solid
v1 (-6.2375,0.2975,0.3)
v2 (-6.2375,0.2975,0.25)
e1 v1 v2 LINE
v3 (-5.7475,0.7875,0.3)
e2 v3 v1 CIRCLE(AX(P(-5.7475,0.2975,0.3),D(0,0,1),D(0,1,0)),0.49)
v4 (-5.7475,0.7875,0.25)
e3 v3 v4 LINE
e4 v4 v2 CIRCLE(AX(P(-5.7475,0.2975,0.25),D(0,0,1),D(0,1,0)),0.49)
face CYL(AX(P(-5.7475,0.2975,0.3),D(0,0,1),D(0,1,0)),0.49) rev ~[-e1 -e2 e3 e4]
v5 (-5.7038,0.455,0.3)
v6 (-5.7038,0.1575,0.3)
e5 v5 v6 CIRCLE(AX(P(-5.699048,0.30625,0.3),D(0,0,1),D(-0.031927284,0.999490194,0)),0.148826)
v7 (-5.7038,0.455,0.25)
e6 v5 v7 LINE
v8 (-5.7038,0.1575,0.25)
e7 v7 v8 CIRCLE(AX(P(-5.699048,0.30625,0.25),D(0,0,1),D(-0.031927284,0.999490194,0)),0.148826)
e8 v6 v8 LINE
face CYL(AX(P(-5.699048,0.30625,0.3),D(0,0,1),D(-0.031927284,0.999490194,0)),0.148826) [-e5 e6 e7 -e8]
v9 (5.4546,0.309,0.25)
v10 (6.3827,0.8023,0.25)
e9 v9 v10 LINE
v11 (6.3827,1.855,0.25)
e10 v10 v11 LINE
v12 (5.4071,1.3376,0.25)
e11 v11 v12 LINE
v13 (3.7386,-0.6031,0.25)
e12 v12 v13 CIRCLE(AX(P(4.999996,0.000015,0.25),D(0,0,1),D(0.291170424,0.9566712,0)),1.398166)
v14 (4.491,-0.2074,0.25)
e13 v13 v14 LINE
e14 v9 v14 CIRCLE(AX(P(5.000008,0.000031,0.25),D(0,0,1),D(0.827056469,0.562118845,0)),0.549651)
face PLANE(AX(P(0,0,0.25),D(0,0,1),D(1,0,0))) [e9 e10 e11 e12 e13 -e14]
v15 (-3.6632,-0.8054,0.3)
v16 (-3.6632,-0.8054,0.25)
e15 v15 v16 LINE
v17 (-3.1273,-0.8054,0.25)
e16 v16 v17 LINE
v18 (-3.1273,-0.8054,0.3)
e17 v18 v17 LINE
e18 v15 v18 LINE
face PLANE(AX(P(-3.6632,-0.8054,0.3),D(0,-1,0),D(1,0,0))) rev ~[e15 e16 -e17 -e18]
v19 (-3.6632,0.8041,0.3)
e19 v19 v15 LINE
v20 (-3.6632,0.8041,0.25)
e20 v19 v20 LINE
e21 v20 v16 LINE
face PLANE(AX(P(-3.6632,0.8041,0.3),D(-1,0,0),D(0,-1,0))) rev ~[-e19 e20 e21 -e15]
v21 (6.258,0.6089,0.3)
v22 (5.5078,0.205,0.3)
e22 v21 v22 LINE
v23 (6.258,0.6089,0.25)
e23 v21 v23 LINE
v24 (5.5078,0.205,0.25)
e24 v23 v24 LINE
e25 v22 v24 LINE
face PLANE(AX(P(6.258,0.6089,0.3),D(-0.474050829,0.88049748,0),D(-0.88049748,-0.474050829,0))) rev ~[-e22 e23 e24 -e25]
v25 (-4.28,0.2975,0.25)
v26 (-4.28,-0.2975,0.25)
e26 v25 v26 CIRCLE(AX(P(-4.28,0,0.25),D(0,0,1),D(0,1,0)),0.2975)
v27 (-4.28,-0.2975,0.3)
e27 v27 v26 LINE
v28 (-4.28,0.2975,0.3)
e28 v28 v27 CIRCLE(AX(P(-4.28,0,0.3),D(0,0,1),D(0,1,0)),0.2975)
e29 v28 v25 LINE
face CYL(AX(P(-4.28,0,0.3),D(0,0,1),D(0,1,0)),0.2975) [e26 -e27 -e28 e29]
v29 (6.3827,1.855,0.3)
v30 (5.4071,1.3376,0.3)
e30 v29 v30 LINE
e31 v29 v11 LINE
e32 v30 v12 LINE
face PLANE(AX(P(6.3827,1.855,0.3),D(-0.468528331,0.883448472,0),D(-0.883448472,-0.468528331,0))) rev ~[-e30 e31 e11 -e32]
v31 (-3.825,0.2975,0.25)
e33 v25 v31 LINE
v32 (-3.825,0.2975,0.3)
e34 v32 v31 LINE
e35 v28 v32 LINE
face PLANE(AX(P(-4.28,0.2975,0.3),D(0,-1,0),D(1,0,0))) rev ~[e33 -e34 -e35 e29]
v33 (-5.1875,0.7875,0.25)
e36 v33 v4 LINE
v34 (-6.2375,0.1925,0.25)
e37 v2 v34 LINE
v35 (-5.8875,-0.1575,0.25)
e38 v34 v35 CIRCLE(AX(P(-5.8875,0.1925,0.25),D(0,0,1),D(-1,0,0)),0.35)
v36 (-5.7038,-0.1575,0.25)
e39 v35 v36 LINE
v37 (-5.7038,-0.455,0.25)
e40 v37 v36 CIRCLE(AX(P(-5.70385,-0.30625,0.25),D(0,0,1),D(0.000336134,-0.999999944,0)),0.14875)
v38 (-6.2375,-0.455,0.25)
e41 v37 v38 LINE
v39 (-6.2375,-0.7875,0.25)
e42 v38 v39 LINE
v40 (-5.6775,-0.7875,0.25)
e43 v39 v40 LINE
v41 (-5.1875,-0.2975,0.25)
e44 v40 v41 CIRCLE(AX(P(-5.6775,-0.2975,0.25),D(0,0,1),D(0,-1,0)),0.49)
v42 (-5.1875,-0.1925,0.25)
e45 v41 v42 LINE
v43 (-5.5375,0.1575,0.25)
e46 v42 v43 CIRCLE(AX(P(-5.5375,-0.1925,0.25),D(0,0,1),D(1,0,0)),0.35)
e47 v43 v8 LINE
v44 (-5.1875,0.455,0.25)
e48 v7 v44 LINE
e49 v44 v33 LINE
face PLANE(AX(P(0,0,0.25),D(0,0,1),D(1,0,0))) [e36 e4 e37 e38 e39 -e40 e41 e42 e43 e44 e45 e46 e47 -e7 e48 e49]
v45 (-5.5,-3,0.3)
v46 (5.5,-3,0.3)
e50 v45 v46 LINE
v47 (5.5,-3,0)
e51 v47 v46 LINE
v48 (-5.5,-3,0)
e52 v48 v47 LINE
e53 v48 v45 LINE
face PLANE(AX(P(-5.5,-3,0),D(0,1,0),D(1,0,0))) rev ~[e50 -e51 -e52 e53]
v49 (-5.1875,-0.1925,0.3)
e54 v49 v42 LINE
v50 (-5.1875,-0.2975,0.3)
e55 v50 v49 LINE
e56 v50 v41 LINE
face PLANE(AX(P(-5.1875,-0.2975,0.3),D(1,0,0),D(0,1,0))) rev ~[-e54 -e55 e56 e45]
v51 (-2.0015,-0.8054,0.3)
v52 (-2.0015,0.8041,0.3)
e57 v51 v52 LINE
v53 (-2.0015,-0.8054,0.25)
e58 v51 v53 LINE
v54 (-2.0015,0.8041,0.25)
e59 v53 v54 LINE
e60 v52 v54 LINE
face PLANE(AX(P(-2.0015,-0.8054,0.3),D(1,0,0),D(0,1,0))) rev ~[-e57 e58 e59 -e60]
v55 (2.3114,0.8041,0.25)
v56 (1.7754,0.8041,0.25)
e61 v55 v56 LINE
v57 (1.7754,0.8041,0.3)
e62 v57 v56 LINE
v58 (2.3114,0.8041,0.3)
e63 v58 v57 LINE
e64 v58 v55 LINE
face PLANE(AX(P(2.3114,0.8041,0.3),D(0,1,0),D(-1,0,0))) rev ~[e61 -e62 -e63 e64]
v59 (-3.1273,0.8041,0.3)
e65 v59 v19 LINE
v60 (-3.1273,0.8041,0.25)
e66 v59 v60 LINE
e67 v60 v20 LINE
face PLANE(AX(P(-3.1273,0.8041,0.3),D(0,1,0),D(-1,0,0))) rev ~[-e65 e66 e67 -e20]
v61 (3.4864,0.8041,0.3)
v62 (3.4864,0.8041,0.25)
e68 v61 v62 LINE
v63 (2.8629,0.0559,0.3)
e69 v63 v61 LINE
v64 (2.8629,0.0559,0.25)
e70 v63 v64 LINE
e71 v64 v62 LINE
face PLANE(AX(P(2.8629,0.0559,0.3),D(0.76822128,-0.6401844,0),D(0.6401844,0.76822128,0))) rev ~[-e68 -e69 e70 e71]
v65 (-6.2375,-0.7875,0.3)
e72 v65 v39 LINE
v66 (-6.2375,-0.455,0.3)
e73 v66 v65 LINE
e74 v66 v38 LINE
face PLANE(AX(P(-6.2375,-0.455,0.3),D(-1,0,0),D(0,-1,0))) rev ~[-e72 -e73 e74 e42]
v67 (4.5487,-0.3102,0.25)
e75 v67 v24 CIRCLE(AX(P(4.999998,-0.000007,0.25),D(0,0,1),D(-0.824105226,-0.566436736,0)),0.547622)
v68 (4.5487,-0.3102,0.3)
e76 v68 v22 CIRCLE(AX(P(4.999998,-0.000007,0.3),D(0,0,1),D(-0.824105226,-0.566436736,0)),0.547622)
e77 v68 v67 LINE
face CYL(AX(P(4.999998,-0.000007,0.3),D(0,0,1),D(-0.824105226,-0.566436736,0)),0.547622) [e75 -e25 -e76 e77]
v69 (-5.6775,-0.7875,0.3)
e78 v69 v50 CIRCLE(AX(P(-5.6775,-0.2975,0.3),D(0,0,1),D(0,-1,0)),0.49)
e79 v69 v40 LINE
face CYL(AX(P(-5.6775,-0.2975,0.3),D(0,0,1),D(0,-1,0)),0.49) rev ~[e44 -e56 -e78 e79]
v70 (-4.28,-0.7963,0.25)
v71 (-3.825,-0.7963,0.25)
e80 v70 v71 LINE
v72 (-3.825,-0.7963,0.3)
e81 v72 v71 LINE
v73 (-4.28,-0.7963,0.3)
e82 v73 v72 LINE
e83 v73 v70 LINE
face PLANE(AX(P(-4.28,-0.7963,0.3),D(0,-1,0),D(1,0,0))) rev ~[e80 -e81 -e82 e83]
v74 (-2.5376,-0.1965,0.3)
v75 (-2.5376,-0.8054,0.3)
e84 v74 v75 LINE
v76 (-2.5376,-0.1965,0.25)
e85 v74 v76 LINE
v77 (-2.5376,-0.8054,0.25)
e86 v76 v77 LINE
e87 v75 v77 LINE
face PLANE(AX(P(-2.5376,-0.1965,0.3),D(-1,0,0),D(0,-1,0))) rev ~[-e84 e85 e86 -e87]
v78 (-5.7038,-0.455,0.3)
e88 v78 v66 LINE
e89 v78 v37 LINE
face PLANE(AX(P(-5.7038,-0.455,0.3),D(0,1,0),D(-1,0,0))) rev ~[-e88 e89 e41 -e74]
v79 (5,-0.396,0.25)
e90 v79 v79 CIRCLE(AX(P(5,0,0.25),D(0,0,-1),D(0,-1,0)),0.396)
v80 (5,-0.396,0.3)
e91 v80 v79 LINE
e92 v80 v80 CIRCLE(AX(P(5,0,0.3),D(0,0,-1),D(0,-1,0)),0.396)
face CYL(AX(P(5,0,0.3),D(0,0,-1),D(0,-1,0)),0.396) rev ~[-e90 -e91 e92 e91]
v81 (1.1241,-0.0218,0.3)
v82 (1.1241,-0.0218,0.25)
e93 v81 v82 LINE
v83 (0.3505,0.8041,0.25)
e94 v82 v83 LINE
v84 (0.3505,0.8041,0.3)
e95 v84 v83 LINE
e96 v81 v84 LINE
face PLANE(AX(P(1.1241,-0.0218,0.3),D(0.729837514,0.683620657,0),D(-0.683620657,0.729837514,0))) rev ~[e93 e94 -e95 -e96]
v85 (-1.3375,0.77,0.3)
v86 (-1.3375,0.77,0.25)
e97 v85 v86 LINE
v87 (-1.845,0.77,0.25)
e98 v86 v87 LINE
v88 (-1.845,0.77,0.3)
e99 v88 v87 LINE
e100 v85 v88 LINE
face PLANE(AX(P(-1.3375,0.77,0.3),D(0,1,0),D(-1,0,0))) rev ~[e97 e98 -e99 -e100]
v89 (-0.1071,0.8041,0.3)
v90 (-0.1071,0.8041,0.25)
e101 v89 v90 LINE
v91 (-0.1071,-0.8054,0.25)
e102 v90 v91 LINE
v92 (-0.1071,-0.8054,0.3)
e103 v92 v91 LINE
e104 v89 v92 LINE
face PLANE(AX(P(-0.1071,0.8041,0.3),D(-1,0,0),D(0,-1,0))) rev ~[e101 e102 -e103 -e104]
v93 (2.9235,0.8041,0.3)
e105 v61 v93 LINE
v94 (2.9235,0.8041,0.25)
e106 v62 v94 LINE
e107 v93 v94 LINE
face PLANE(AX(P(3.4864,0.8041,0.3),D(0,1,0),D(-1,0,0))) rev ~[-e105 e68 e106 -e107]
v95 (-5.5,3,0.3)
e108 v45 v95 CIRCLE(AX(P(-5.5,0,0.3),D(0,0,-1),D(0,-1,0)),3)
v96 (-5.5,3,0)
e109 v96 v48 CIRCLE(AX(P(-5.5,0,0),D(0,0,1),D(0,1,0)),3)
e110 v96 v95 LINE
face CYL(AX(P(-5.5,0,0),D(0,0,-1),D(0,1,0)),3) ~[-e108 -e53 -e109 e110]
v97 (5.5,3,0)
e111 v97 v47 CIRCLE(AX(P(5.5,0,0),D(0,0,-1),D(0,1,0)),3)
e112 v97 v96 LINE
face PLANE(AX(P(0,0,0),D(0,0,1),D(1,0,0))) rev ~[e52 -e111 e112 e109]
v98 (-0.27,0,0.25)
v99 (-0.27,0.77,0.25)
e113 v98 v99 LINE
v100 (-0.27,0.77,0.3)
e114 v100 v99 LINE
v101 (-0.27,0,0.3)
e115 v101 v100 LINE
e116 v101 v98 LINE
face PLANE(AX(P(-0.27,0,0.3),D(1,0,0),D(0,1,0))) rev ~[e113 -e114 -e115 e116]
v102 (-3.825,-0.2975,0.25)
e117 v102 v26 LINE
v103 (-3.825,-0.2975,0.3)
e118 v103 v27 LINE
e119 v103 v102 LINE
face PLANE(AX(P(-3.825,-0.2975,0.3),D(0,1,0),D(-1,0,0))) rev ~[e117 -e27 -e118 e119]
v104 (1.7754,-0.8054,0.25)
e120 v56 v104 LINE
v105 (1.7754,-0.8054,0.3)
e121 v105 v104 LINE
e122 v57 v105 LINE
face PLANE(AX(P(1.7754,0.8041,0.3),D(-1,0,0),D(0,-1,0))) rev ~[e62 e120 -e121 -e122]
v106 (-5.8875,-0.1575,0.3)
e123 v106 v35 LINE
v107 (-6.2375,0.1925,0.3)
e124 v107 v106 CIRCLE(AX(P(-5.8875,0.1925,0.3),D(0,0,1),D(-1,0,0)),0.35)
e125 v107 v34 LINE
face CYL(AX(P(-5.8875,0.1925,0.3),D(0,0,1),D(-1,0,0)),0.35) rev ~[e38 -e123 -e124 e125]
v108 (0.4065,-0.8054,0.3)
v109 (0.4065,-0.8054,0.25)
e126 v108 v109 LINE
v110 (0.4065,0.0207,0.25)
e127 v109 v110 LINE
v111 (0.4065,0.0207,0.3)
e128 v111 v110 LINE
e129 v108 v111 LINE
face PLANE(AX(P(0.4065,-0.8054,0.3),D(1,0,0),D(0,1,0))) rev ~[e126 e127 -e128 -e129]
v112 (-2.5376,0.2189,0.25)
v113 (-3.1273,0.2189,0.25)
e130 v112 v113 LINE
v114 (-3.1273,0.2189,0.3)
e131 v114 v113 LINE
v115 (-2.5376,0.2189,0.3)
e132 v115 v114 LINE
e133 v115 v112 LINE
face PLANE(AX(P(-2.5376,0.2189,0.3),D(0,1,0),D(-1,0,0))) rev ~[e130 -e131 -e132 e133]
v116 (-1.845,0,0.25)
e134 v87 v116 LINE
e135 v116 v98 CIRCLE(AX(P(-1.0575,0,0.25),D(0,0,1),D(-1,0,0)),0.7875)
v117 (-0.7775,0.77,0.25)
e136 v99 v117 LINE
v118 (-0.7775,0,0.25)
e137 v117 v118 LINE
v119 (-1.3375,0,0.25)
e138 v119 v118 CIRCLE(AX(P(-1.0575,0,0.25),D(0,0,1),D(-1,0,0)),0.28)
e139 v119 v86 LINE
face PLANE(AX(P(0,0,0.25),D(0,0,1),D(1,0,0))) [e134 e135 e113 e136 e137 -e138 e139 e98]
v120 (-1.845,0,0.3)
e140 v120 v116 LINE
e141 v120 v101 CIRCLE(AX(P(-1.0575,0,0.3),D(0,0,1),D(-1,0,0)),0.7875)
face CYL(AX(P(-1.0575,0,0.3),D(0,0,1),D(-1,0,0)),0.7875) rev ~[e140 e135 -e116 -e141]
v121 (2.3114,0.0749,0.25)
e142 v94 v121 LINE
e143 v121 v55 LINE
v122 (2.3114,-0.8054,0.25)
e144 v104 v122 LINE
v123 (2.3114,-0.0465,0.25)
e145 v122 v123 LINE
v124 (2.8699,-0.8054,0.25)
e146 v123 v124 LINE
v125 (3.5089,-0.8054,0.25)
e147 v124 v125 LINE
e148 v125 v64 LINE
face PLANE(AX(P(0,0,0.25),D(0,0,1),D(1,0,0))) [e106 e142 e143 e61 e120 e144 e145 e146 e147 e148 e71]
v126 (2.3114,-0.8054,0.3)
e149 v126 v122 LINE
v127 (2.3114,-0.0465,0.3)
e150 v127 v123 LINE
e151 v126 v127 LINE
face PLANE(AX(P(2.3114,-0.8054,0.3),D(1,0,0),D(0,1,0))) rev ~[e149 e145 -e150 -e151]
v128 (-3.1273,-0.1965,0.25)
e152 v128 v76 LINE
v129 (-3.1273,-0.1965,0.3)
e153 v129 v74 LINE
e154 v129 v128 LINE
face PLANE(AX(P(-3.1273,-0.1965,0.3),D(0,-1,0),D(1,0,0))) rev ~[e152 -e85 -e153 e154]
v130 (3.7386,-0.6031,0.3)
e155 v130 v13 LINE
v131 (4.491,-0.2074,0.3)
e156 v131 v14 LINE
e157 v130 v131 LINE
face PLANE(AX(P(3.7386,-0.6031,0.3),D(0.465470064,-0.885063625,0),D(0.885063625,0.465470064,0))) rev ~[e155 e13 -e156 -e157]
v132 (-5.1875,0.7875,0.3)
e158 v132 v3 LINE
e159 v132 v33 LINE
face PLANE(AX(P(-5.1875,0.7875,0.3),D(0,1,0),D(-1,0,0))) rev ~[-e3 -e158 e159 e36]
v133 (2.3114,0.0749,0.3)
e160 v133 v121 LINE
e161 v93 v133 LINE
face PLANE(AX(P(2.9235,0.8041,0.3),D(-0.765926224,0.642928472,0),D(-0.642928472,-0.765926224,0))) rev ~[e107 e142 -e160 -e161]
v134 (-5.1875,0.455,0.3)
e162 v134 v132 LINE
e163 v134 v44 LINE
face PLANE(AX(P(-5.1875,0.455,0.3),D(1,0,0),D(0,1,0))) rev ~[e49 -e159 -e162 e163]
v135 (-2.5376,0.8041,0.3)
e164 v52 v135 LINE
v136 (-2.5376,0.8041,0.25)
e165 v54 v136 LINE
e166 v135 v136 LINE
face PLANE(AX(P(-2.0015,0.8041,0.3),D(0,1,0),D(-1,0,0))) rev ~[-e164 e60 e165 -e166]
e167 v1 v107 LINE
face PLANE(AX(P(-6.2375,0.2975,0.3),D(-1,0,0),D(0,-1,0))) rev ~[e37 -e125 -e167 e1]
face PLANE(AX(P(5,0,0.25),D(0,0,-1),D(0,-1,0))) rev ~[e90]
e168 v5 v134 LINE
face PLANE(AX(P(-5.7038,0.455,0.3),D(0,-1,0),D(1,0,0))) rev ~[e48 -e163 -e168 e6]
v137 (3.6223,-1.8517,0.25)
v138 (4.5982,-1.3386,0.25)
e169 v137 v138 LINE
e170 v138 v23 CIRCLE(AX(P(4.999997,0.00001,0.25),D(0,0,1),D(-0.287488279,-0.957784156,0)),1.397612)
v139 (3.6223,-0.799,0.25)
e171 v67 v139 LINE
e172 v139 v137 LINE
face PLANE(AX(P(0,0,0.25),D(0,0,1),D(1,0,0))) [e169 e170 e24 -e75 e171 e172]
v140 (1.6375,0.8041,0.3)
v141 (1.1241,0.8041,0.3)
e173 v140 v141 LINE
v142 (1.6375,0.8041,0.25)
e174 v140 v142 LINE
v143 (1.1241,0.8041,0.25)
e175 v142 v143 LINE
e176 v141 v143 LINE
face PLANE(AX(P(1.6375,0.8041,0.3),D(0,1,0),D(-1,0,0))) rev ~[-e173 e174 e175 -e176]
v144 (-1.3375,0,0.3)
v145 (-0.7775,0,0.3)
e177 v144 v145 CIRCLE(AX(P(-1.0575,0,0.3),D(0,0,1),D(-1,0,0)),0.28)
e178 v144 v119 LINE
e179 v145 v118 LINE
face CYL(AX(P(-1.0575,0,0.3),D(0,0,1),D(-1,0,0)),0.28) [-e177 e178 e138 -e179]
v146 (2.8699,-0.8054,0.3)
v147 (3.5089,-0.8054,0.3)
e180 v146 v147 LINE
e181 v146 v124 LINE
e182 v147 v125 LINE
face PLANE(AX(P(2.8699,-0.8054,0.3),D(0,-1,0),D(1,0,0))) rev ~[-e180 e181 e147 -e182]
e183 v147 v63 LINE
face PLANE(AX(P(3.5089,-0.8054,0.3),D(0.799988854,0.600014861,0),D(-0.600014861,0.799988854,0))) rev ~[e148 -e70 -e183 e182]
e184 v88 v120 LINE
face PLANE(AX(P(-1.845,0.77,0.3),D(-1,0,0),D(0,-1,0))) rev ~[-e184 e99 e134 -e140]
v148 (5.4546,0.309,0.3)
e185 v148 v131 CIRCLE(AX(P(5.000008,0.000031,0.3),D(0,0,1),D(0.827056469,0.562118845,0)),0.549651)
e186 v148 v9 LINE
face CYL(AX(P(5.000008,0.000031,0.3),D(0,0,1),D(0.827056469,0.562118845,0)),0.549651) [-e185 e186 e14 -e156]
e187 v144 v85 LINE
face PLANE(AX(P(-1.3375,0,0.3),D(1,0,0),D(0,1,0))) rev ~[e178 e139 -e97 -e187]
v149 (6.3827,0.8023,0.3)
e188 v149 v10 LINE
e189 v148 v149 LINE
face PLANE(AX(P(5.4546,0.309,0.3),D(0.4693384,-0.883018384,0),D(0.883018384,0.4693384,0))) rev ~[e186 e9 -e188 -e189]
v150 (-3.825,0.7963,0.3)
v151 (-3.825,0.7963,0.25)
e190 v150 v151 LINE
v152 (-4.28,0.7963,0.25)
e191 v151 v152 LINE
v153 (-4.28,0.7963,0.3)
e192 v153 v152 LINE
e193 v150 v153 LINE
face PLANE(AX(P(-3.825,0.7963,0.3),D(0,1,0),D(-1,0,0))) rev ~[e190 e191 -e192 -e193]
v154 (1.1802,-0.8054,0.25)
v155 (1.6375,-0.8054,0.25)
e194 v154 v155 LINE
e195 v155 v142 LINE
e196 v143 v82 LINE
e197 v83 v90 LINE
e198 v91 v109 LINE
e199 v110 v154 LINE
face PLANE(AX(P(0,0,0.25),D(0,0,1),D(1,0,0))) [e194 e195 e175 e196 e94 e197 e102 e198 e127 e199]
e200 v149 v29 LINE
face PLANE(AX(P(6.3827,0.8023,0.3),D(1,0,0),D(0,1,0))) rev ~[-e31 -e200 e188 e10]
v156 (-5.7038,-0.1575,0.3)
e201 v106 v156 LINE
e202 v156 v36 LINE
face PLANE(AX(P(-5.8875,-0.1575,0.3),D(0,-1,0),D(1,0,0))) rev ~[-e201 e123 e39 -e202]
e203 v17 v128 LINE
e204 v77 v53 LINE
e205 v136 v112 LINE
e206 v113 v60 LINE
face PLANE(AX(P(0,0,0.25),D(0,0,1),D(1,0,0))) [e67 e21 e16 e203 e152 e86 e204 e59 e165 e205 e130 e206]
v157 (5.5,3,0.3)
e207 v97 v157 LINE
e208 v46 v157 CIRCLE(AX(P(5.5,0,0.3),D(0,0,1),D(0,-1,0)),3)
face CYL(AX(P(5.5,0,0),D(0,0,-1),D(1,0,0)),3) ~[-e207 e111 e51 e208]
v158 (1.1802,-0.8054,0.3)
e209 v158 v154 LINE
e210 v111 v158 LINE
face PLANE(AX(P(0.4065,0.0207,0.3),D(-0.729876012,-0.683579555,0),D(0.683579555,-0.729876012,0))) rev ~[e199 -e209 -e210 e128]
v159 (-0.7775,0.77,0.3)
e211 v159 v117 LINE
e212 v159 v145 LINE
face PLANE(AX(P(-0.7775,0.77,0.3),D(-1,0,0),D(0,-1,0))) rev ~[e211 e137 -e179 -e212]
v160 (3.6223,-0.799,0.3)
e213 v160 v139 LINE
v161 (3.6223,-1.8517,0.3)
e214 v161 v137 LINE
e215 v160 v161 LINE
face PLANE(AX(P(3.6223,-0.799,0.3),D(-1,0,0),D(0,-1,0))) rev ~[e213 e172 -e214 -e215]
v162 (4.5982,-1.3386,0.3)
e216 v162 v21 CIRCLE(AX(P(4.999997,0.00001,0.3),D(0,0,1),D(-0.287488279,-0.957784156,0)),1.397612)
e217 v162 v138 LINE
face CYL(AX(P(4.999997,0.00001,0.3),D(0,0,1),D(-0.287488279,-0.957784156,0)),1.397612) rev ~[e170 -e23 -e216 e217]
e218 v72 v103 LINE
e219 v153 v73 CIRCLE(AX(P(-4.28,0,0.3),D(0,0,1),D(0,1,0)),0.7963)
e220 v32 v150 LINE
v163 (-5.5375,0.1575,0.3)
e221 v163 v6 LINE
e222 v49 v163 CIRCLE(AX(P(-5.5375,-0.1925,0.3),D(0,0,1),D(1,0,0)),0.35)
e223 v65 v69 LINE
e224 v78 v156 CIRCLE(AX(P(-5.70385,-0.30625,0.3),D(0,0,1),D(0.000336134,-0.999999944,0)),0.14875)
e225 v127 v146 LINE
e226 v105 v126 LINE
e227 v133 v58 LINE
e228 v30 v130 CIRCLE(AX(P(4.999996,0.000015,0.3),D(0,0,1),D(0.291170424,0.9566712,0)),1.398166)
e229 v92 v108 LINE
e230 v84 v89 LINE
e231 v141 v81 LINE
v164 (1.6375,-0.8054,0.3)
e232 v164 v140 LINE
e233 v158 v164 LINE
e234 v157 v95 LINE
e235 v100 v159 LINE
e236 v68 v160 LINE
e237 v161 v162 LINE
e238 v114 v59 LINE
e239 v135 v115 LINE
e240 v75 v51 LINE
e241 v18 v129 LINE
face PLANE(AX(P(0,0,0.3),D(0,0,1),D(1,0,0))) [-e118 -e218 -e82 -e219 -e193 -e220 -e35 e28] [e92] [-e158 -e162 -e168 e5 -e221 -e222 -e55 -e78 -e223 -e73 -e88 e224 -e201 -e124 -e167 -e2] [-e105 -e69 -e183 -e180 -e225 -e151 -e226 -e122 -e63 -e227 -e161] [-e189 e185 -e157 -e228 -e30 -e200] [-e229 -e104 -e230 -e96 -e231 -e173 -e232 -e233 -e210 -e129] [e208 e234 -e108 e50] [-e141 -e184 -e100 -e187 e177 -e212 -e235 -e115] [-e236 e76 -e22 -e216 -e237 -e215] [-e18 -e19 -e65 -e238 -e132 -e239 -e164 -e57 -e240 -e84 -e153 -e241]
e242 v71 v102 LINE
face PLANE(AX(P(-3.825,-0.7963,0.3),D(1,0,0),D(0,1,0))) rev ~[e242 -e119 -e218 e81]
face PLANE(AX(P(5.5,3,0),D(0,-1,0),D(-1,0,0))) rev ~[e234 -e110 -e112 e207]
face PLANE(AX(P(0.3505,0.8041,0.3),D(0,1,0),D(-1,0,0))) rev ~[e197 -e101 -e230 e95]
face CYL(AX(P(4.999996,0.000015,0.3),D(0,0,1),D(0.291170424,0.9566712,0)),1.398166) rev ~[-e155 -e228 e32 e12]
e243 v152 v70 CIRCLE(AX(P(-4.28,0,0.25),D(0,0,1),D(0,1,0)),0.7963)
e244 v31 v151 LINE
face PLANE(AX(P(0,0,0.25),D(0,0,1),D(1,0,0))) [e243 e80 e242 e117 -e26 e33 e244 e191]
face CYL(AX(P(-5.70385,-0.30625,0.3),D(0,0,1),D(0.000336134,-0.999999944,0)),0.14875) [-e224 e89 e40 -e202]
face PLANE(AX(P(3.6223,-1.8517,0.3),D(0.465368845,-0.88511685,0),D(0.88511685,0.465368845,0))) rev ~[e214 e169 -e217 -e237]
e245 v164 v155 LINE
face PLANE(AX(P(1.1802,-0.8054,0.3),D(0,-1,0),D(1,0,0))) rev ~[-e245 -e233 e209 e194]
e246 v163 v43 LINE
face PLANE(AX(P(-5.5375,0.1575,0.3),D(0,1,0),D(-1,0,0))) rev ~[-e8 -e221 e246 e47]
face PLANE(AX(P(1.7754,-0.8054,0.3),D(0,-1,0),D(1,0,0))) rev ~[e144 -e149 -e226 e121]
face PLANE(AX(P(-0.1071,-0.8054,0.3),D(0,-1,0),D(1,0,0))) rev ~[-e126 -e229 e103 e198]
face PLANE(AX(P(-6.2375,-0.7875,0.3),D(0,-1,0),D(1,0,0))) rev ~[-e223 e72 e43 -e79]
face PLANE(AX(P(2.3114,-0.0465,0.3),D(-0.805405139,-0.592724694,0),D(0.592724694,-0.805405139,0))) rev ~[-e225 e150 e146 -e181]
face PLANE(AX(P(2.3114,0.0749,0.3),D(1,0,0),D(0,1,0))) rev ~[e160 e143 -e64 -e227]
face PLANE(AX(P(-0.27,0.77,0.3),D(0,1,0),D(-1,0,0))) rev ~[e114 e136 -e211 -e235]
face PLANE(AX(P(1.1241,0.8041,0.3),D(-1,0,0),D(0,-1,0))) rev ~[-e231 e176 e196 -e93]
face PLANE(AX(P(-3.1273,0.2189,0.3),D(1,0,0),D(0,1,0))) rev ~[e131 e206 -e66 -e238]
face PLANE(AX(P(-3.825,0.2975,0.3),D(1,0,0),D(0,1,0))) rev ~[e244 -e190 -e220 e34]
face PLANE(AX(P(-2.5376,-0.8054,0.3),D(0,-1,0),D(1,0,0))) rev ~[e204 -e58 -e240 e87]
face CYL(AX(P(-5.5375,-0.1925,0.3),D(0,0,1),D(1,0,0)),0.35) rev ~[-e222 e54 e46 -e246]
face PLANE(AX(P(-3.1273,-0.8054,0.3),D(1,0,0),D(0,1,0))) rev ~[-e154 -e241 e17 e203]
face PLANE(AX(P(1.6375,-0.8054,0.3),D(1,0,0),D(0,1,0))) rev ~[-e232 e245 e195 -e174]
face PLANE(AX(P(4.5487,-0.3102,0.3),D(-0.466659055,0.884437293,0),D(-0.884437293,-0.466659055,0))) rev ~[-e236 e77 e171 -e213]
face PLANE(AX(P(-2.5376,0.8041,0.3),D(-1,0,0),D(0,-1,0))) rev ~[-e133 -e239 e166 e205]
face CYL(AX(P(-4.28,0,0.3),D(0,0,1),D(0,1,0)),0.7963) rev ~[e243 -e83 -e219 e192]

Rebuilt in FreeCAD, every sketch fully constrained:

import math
import FreeCAD as App
import Part
import Sketcher
from FreeCAD import Vector
Q = App.Units.Quantity

doc = App.newDocument("Part")
body = doc.addObject("PartDesign::Body", "Body")

sketch1 = doc.addObject("Sketcher::SketchObject", "Sketch")
body.addObject(sketch1)
sketch1.AttachmentSupport = (doc.XY_Plane, [""])
sketch1.MapMode = "FlatFace"
sketch1.addGeometry(Part.ArcOfCircle(Part.Circle(Vector(-5.5, 0, 0), Vector(0, 0, 1), 3), math.radians(90), math.radians(270)), False)
sketch1.addGeometry(Part.LineSegment(Vector(-5.5, -3, 0), Vector(5.5, -3, 0)), False)
sketch1.addGeometry(Part.ArcOfCircle(Part.Circle(Vector(5.5, 0, 0), Vector(0, 0, 1), 3), math.radians(-90), math.radians(90)), False)
sketch1.addGeometry(Part.LineSegment(Vector(5.5, 3, 0), Vector(-5.5, 3, 0)), False)
sketch1.addConstraint(Sketcher.Constraint("Tangent", 0, 2, 1, 1))
sketch1.addConstraint(Sketcher.Constraint("Tangent", 1, 2, 2, 1))
sketch1.addConstraint(Sketcher.Constraint("Tangent", 2, 2, 3, 1))
sketch1.addConstraint(Sketcher.Constraint("Tangent", 3, 2, 0, 1))
sketch1.addConstraint(Sketcher.Constraint("Horizontal", 1))
sketch1.addConstraint(Sketcher.Constraint("Horizontal", 3))
sketch1.addConstraint(Sketcher.Constraint("Symmetric", 0, 3, 2, 3, -1, 1))
sketch1.addConstraint(Sketcher.Constraint("Radius", 0, 3.0))
sketch1.addConstraint(Sketcher.Constraint("DistanceX", 1, 1, 1, 2, 11.0))
pad1 = doc.addObject("PartDesign::Pad", "Pad")
body.addObject(pad1)
pad1.Profile = sketch1
pad1.Length = 0.3

sketch2 = doc.addObject("Sketcher::SketchObject", "Sketch001")
body.addObject(sketch2)
sketch2.AttachmentSupport = (doc.XY_Plane, [""])
sketch2.MapMode = "FlatFace"
sketch2.AttachmentOffset = App.Placement(Vector(0, 0, 0.3), App.Rotation())
sketch2.addGeometry(Part.LineSegment(Vector(-3.1, 0.8, 0), Vector(-3.7, 0.8, 0)), False)
sketch2.addGeometry(Part.LineSegment(Vector(-3.7, 0.8, 0), Vector(-3.7, -0.8, 0)), False)
sketch2.addGeometry(Part.LineSegment(Vector(-3.7, -0.8, 0), Vector(-3.1, -0.8, 0)), False)
sketch2.addGeometry(Part.LineSegment(Vector(-3.1, -0.8, 0), Vector(-3.1, -0.2, 0)), False)
sketch2.addGeometry(Part.LineSegment(Vector(-3.1, -0.2, 0), Vector(-2.5, -0.2, 0)), False)
sketch2.addGeometry(Part.LineSegment(Vector(-2.5, -0.2, 0), Vector(-2.5, -0.8, 0)), False)
sketch2.addGeometry(Part.LineSegment(Vector(-2.5, -0.8, 0), Vector(-2, -0.8, 0)), False)
sketch2.addGeometry(Part.LineSegment(Vector(-2, -0.8, 0), Vector(-2, 0.8, 0)), False)
sketch2.addGeometry(Part.LineSegment(Vector(-2, 0.8, 0), Vector(-2.5, 0.8, 0)), False)
sketch2.addGeometry(Part.LineSegment(Vector(-2.5, 0.8, 0), Vector(-2.5, 0.2, 0)), False)
sketch2.addGeometry(Part.LineSegment(Vector(-2.5, 0.2, 0), Vector(-3.1, 0.2, 0)), False)
sketch2.addGeometry(Part.LineSegment(Vector(-3.1, 0.2, 0), Vector(-3.1, 0.8, 0)), False)
sketch2.addConstraint(Sketcher.Constraint("Coincident", 0, 2, 1, 1))
sketch2.addConstraint(Sketcher.Constraint("Coincident", 1, 2, 2, 1))
sketch2.addConstraint(Sketcher.Constraint("Coincident", 2, 2, 3, 1))
sketch2.addConstraint(Sketcher.Constraint("Coincident", 3, 2, 4, 1))
sketch2.addConstraint(Sketcher.Constraint("Coincident", 4, 2, 5, 1))
sketch2.addConstraint(Sketcher.Constraint("Coincident", 5, 2, 6, 1))
sketch2.addConstraint(Sketcher.Constraint("Coincident", 6, 2, 7, 1))
sketch2.addConstraint(Sketcher.Constraint("Coincident", 7, 2, 8, 1))
sketch2.addConstraint(Sketcher.Constraint("Coincident", 8, 2, 9, 1))
sketch2.addConstraint(Sketcher.Constraint("Coincident", 9, 2, 10, 1))
sketch2.addConstraint(Sketcher.Constraint("Coincident", 10, 2, 11, 1))
sketch2.addConstraint(Sketcher.Constraint("Coincident", 11, 2, 0, 1))
sketch2.addConstraint(Sketcher.Constraint("Horizontal", 0))
sketch2.addConstraint(Sketcher.Constraint("Vertical", 1))
sketch2.addConstraint(Sketcher.Constraint("Horizontal", 2))
sketch2.addConstraint(Sketcher.Constraint("Vertical", 3))
sketch2.addConstraint(Sketcher.Constraint("Horizontal", 4))
sketch2.addConstraint(Sketcher.Constraint("Vertical", 5))
sketch2.addConstraint(Sketcher.Constraint("Horizontal", 6))
sketch2.addConstraint(Sketcher.Constraint("Vertical", 7))
sketch2.addConstraint(Sketcher.Constraint("Horizontal", 8))
sketch2.addConstraint(Sketcher.Constraint("Vertical", 9))
sketch2.addConstraint(Sketcher.Constraint("Horizontal", 10))
sketch2.addConstraint(Sketcher.Constraint("Vertical", 11))
sketch2.addConstraint(Sketcher.Constraint("Horizontal", 2, 2, 5, 2))
sketch2.addConstraint(Sketcher.Constraint("Horizontal", 0, 2, 7, 2))
sketch2.addConstraint(Sketcher.Constraint("Vertical", 5, 2, 8, 2))
sketch2.addConstraint(Sketcher.Constraint("Vertical", 3, 2, 10, 2))
sketch2.addConstraint(Sketcher.Constraint("Equal", 2, 6))
sketch2.addConstraint(Sketcher.Constraint("DistanceX", 0, 2, 0, 1, 0.536))
sketch2.addConstraint(Sketcher.Constraint("DistanceY", 3, 1, 3, 2, 0.609))
sketch2.addConstraint(Sketcher.Constraint("DistanceX", 4, 1, 4, 2, 0.5897))
sketch2.addConstraint(Sketcher.Constraint("DistanceY", 1, 2, 1, 1, 1.6095))
sketch2.addConstraint(Sketcher.Constraint("DistanceY", 9, 2, 9, 1, 0.5852))
sketch2.addConstraint(Sketcher.Constraint("DistanceY", -1, 1, 0, 2, 0.804))
sketch2.addConstraint(Sketcher.Constraint("DistanceX", 0, 2, -1, 1, 3.6632))
pocket1 = doc.addObject("PartDesign::Pocket", "Pocket")
body.addObject(pocket1)
pocket1.Profile = sketch2
pocket1.Length = 0.05

sketch3 = doc.addObject("Sketcher::SketchObject", "Sketch002")
body.addObject(sketch3)
sketch3.AttachmentSupport = (doc.XY_Plane, [""])
sketch3.MapMode = "FlatFace"
sketch3.AttachmentOffset = App.Placement(Vector(0, 0, 0.3), App.Rotation())
sketch3.addGeometry(Part.LineSegment(Vector(0.35, 0.8, 0), Vector(-0.11, 0.8, 0)), False)
sketch3.addGeometry(Part.LineSegment(Vector(-0.11, 0.8, 0), Vector(-0.11, -0.81, 0)), False)
sketch3.addGeometry(Part.LineSegment(Vector(-0.11, -0.81, 0), Vector(0.41, -0.81, 0)), False)
sketch3.addGeometry(Part.LineSegment(Vector(0.41, -0.81, 0), Vector(0.41, 0.02, 0)), False)
sketch3.addGeometry(Part.LineSegment(Vector(0.41, 0.02, 0), Vector(1.18, -0.81, 0)), False)
sketch3.addGeometry(Part.LineSegment(Vector(1.18, -0.81, 0), Vector(1.64, -0.81, 0)), False)
sketch3.addGeometry(Part.LineSegment(Vector(1.64, -0.81, 0), Vector(1.64, 0.8, 0)), False)
sketch3.addGeometry(Part.LineSegment(Vector(1.64, 0.8, 0), Vector(1.12, 0.8, 0)), False)
sketch3.addGeometry(Part.LineSegment(Vector(1.12, 0.8, 0), Vector(1.12, -0.02, 0)), False)
sketch3.addGeometry(Part.LineSegment(Vector(1.12, -0.02, 0), Vector(0.35, 0.8, 0)), False)
sketch3.addConstraint(Sketcher.Constraint("Coincident", 0, 2, 1, 1))
sketch3.addConstraint(Sketcher.Constraint("Coincident", 1, 2, 2, 1))
sketch3.addConstraint(Sketcher.Constraint("Coincident", 2, 2, 3, 1))
sketch3.addConstraint(Sketcher.Constraint("Coincident", 3, 2, 4, 1))
sketch3.addConstraint(Sketcher.Constraint("Coincident", 4, 2, 5, 1))
sketch3.addConstraint(Sketcher.Constraint("Coincident", 5, 2, 6, 1))
sketch3.addConstraint(Sketcher.Constraint("Coincident", 6, 2, 7, 1))
sketch3.addConstraint(Sketcher.Constraint("Coincident", 7, 2, 8, 1))
sketch3.addConstraint(Sketcher.Constraint("Coincident", 8, 2, 9, 1))
sketch3.addConstraint(Sketcher.Constraint("Coincident", 9, 2, 0, 1))
sketch3.addConstraint(Sketcher.Constraint("Horizontal", 0))
sketch3.addConstraint(Sketcher.Constraint("Vertical", 1))
sketch3.addConstraint(Sketcher.Constraint("Horizontal", 2))
sketch3.addConstraint(Sketcher.Constraint("Vertical", 3))
sketch3.addConstraint(Sketcher.Constraint("Horizontal", 5))
sketch3.addConstraint(Sketcher.Constraint("Vertical", 6))
sketch3.addConstraint(Sketcher.Constraint("Horizontal", 7))
sketch3.addConstraint(Sketcher.Constraint("Vertical", 8))
sketch3.addConstraint(Sketcher.Constraint("Parallel", 4, 9))
sketch3.addConstraint(Sketcher.Constraint("Horizontal", 2, 2, 4, 2))
sketch3.addConstraint(Sketcher.Constraint("Horizontal", 0, 2, 6, 2))
sketch3.addConstraint(Sketcher.Constraint("Equal", 3, 8))
sketch3.addConstraint(Sketcher.Constraint("DistanceY", 3, 1, 3, 2, 0.826))
sketch3.addConstraint(Sketcher.Constraint("DistanceX", 0, 2, 0, 1, 0.4576))
sketch3.addConstraint(Sketcher.Constraint("DistanceX", 2, 1, 2, 2, 0.5136))
sketch3.addConstraint(Sketcher.Constraint("DistanceX", 5, 1, 5, 2, 0.4573))
sketch3.addConstraint(Sketcher.Constraint("DistanceY", 1, 2, 1, 1, 1.6095))
sketch3.addConstraint(Sketcher.Constraint("DistanceX", 0, 2, -1, 1, 0.107))
sketch3.addConstraint(Sketcher.Constraint("DistanceY", -1, 1, 0, 2, 0.804))
sketch3.addConstraint(Sketcher.Constraint("DistanceX", -1, 1, 7, 2, 1.124))
pocket2 = doc.addObject("PartDesign::Pocket", "Pocket001")
body.addObject(pocket2)
pocket2.Profile = sketch3
pocket2.Length = 0.05

sketch4 = doc.addObject("Sketcher::SketchObject", "Sketch003")
body.addObject(sketch4)
sketch4.AttachmentSupport = (doc.XY_Plane, [""])
sketch4.MapMode = "FlatFace"
sketch4.AttachmentOffset = App.Placement(Vector(0, 0, 0.3), App.Rotation())
sketch4.addGeometry(Part.LineSegment(Vector(2.3, 0.8, 0), Vector(1.8, 0.8, 0)), False)
sketch4.addGeometry(Part.LineSegment(Vector(1.8, 0.8, 0), Vector(1.8, -0.8, 0)), False)
sketch4.addGeometry(Part.LineSegment(Vector(1.8, -0.8, 0), Vector(2.3, -0.8, 0)), False)
sketch4.addGeometry(Part.LineSegment(Vector(2.3, -0.8, 0), Vector(2.3, 0, 0)), False)
sketch4.addGeometry(Part.LineSegment(Vector(2.3, 0, 0), Vector(2.9, -0.8, 0)), False)
sketch4.addGeometry(Part.LineSegment(Vector(2.9, -0.8, 0), Vector(3.5, -0.8, 0)), False)
sketch4.addGeometry(Part.LineSegment(Vector(3.5, -0.8, 0), Vector(2.9, 0.1, 0)), False)
sketch4.addGeometry(Part.LineSegment(Vector(2.9, 0.1, 0), Vector(3.5, 0.8, 0)), False)
sketch4.addGeometry(Part.LineSegment(Vector(3.5, 0.8, 0), Vector(2.9, 0.8, 0)), False)
sketch4.addGeometry(Part.LineSegment(Vector(2.9, 0.8, 0), Vector(2.3, 0.1, 0)), False)
sketch4.addGeometry(Part.LineSegment(Vector(2.3, 0.1, 0), Vector(2.3, 0.8, 0)), False)
sketch4.addConstraint(Sketcher.Constraint("Coincident", 0, 2, 1, 1))
sketch4.addConstraint(Sketcher.Constraint("Coincident", 1, 2, 2, 1))
sketch4.addConstraint(Sketcher.Constraint("Coincident", 2, 2, 3, 1))
sketch4.addConstraint(Sketcher.Constraint("Coincident", 3, 2, 4, 1))
sketch4.addConstraint(Sketcher.Constraint("Coincident", 4, 2, 5, 1))
sketch4.addConstraint(Sketcher.Constraint("Coincident", 5, 2, 6, 1))
sketch4.addConstraint(Sketcher.Constraint("Coincident", 6, 2, 7, 1))
sketch4.addConstraint(Sketcher.Constraint("Coincident", 7, 2, 8, 1))
sketch4.addConstraint(Sketcher.Constraint("Coincident", 8, 2, 9, 1))
sketch4.addConstraint(Sketcher.Constraint("Coincident", 9, 2, 10, 1))
sketch4.addConstraint(Sketcher.Constraint("Coincident", 10, 2, 0, 1))
sketch4.addConstraint(Sketcher.Constraint("Horizontal", 0))
sketch4.addConstraint(Sketcher.Constraint("Vertical", 1))
sketch4.addConstraint(Sketcher.Constraint("Horizontal", 2))
sketch4.addConstraint(Sketcher.Constraint("Vertical", 3))
sketch4.addConstraint(Sketcher.Constraint("Horizontal", 5))
sketch4.addConstraint(Sketcher.Constraint("Horizontal", 8))
sketch4.addConstraint(Sketcher.Constraint("Vertical", 10))
sketch4.addConstraint(Sketcher.Constraint("Horizontal", 2, 2, 4, 2))
sketch4.addConstraint(Sketcher.Constraint("Horizontal", 0, 2, 7, 2))
sketch4.addConstraint(Sketcher.Constraint("Vertical", 3, 2, 9, 2))
sketch4.addConstraint(Sketcher.Constraint("Angle", 4, Q("-53.6494 deg")))
sketch4.addConstraint(Sketcher.Constraint("Angle", 6, Q("126.871 deg")))
sketch4.addConstraint(Sketcher.Constraint("Angle", 9, Q("-130.0105 deg")))
sketch4.addConstraint(Sketcher.Constraint("DistanceX", 0, 2, 0, 1, 0.536))
sketch4.addConstraint(Sketcher.Constraint("DistanceX", 5, 1, 5, 2, 0.639))
sketch4.addConstraint(Sketcher.Constraint("DistanceX", 8, 2, 8, 1, 0.563))
sketch4.addConstraint(Sketcher.Constraint("DistanceY", 3, 1, 3, 2, 0.759))
sketch4.addConstraint(Sketcher.Constraint("DistanceX", -1, 1, 4, 2, 2.87))
sketch4.addConstraint(Sketcher.Constraint("Distance", 7, 0.974))
sketch4.addConstraint(Sketcher.Constraint("Distance", 9, 0.952))
sketch4.addConstraint(Sketcher.Constraint("DistanceY", 1, 2, 1, 1, 1.6095))
sketch4.addConstraint(Sketcher.Constraint("DistanceY", -1, 1, 0, 2, 0.804))
pocket3 = doc.addObject("PartDesign::Pocket", "Pocket002")
body.addObject(pocket3)
pocket3.Profile = sketch4
pocket3.Length = 0.05

sketch5 = doc.addObject("Sketcher::SketchObject", "Sketch004")
body.addObject(sketch5)
sketch5.AttachmentSupport = (doc.XY_Plane, [""])
sketch5.MapMode = "FlatFace"
sketch5.AttachmentOffset = App.Placement(Vector(0, 0, 0.3), App.Rotation())
sketch5.addGeometry(Part.LineSegment(Vector(-6.2375, 0.2975, 0), Vector(-6.2375, 0.1925, 0)), False)
sketch5.addGeometry(Part.ArcOfCircle(Part.Circle(Vector(-5.8875, 0.1925, 0), Vector(0, 0, 1), 0.35), math.radians(180), math.radians(270)), False)
sketch5.addGeometry(Part.LineSegment(Vector(-5.8875, -0.1575, 0), Vector(-5.7038, -0.1575, 0)), False)
sketch5.addGeometry(Part.ArcOfCircle(Part.Circle(Vector(-5.7038, -0.3063, 0), Vector(0, 0, 1), 0.1487), math.radians(-90), math.radians(90)), False)
sketch5.addGeometry(Part.LineSegment(Vector(-5.7038, -0.455, 0), Vector(-6.2375, -0.455, 0)), False)
sketch5.addGeometry(Part.LineSegment(Vector(-6.2375, -0.455, 0), Vector(-6.2375, -0.7875, 0)), False)
sketch5.addGeometry(Part.LineSegment(Vector(-6.2375, -0.7875, 0), Vector(-5.6775, -0.7875, 0)), False)
sketch5.addGeometry(Part.ArcOfCircle(Part.Circle(Vector(-5.6775, -0.2975, 0), Vector(0, 0, 1), 0.49), math.radians(-90), math.radians(0)), False)
sketch5.addGeometry(Part.LineSegment(Vector(-5.1875, -0.2975, 0), Vector(-5.1875, -0.1925, 0)), False)
sketch5.addGeometry(Part.ArcOfCircle(Part.Circle(Vector(-5.5375, -0.1925, 0), Vector(0, 0, 1), 0.35), math.radians(0), math.radians(90)), False)
sketch5.addGeometry(Part.LineSegment(Vector(-5.5375, 0.1575, 0), Vector(-5.7038, 0.1575, 0)), False)
sketch5.addGeometry(Part.ArcOfCircle(Part.Circle(Vector(-5.6991, 0.3063, 0), Vector(0, 0, 1), 0.148774), math.radians(91.81036), math.radians(268.190856)), False)
sketch5.addGeometry(Part.LineSegment(Vector(-5.7038, 0.455, 0), Vector(-5.1875, 0.455, 0)), False)
sketch5.addGeometry(Part.LineSegment(Vector(-5.1875, 0.455, 0), Vector(-5.1875, 0.7875, 0)), False)
sketch5.addGeometry(Part.LineSegment(Vector(-5.1875, 0.7875, 0), Vector(-5.7475, 0.7875, 0)), False)
sketch5.addGeometry(Part.ArcOfCircle(Part.Circle(Vector(-5.7475, 0.2975, 0), Vector(0, 0, 1), 0.49), math.radians(90), math.radians(180)), False)
sketch5.addConstraint(Sketcher.Constraint("Coincident", 0, 2, 1, 1))
sketch5.addConstraint(Sketcher.Constraint("Coincident", 1, 2, 2, 1))
sketch5.addConstraint(Sketcher.Constraint("Coincident", 2, 2, 3, 2))
sketch5.addConstraint(Sketcher.Constraint("Coincident", 3, 1, 4, 1))
sketch5.addConstraint(Sketcher.Constraint("Coincident", 4, 2, 5, 1))
sketch5.addConstraint(Sketcher.Constraint("Coincident", 5, 2, 6, 1))
sketch5.addConstraint(Sketcher.Constraint("Coincident", 6, 2, 7, 1))
sketch5.addConstraint(Sketcher.Constraint("Coincident", 7, 2, 8, 1))
sketch5.addConstraint(Sketcher.Constraint("Coincident", 8, 2, 9, 1))
sketch5.addConstraint(Sketcher.Constraint("Coincident", 9, 2, 10, 1))
sketch5.addConstraint(Sketcher.Constraint("Coincident", 10, 2, 11, 2))
sketch5.addConstraint(Sketcher.Constraint("Coincident", 11, 1, 12, 1))
sketch5.addConstraint(Sketcher.Constraint("Coincident", 12, 2, 13, 1))
sketch5.addConstraint(Sketcher.Constraint("Coincident", 13, 2, 14, 1))
sketch5.addConstraint(Sketcher.Constraint("Coincident", 14, 2, 15, 1))
sketch5.addConstraint(Sketcher.Constraint("Coincident", 15, 2, 0, 1))
sketch5.addConstraint(Sketcher.Constraint("Vertical", 0))
sketch5.addConstraint(Sketcher.Constraint("Horizontal", 2))
sketch5.addConstraint(Sketcher.Constraint("Horizontal", 4))
sketch5.addConstraint(Sketcher.Constraint("Vertical", 5))
sketch5.addConstraint(Sketcher.Constraint("Horizontal", 6))
sketch5.addConstraint(Sketcher.Constraint("Vertical", 8))
sketch5.addConstraint(Sketcher.Constraint("Horizontal", 10))
sketch5.addConstraint(Sketcher.Constraint("Horizontal", 12))
sketch5.addConstraint(Sketcher.Constraint("Vertical", 13))
sketch5.addConstraint(Sketcher.Constraint("Horizontal", 14))
sketch5.addConstraint(Sketcher.Constraint("Radius", 1, 0.35))
sketch5.addConstraint(Sketcher.Constraint("Radius", 7, 0.49))
sketch5.addConstraint(Sketcher.Constraint("Radius", 9, 0.35))
sketch5.addConstraint(Sketcher.Constraint("Radius", 15, 0.49))
sketch5.addConstraint(Sketcher.Constraint("DistanceX", 6, 1, 6, 2, 0.56))
sketch5.addConstraint(Sketcher.Constraint("DistanceX", 14, 2, 14, 1, 0.56))
sketch5.addConstraint(Sketcher.Constraint("Radius", 3, 0.1487))
sketch5.addConstraint(Sketcher.Constraint("Radius", 11, 0.1488))
sketch5.addConstraint(Sketcher.Constraint("DistanceY", 0, 2, 0, 1, 0.105))
sketch5.addConstraint(Sketcher.Constraint("DistanceY", 8, 1, 8, 2, 0.105))
sketch5.addConstraint(Sketcher.Constraint("DistanceX", 1, 3, 7, 3, 0.21))
sketch5.addConstraint(Sketcher.Constraint("DistanceY", 7, 3, 1, 3, 0.49))
sketch5.addConstraint(Sketcher.Constraint("DistanceY", 9, 3, 15, 3, 0.49))
sketch5.addConstraint(Sketcher.Constraint("DistanceY", 7, 3, 0, 2, 0.49))
sketch5.addConstraint(Sketcher.Constraint("DistanceX", 1, 2, 7, 3, 0.21))
sketch5.addConstraint(Sketcher.Constraint("DistanceX", 4, 2, 1, 2, 0.35))
sketch5.addConstraint(Sketcher.Constraint("DistanceY", 7, 2, 2, 2, 0.14))
sketch5.addConstraint(Sketcher.Constraint("DistanceX", 15, 3, 9, 2, 0.21))
sketch5.addConstraint(Sketcher.Constraint("DistanceX", 9, 2, 12, 2, 0.35))
sketch5.addConstraint(Sketcher.Constraint("DistanceY", 10, 2, 15, 2, 0.14))
sketch5.addConstraint(Sketcher.Constraint("DistanceX", 2, 1, 2, 2, 0.1837))
sketch5.addConstraint(Sketcher.Constraint("DistanceX", 4, 2, 4, 1, 0.5337))
sketch5.addConstraint(Sketcher.Constraint("DistanceX", 10, 2, 10, 1, 0.1663))
sketch5.addConstraint(Sketcher.Constraint("DistanceX", 12, 1, 12, 2, 0.5163))
sketch5.addConstraint(Sketcher.Constraint("DistanceY", 13, 1, 13, 2, 0.3325))
sketch5.addConstraint(Sketcher.Constraint("DistanceX", 11, 3, -1, 1, 5.699))
sketch5.addConstraint(Sketcher.Constraint("DistanceY", 3, 1, -1, 1, 0.455))
sketch5.addConstraint(Sketcher.Constraint("DistanceX", 3, 3, -1, 1, 5.7038))
pocket4 = doc.addObject("PartDesign::Pocket", "Pocket003")
body.addObject(pocket4)
pocket4.Profile = sketch5
pocket4.Length = 0.05

sketch6 = doc.addObject("Sketcher::SketchObject", "Sketch005")
body.addObject(sketch6)
sketch6.AttachmentSupport = (doc.XY_Plane, [""])
sketch6.MapMode = "FlatFace"
sketch6.AttachmentOffset = App.Placement(Vector(0, 0, 0.3), App.Rotation())
sketch6.addGeometry(Part.LineSegment(Vector(-3.83, 0.8, 0), Vector(-4.28, 0.8, 0)), False)
sketch6.addGeometry(Part.ArcOfCircle(Part.Circle(Vector(-4.28, 0, 0), Vector(0, 0, 1), 0.8), math.radians(90), math.radians(270)), False)
sketch6.addGeometry(Part.LineSegment(Vector(-4.28, -0.8, 0), Vector(-3.83, -0.8, 0)), False)
sketch6.addGeometry(Part.LineSegment(Vector(-3.83, -0.8, 0), Vector(-3.83, -0.3, 0)), False)
sketch6.addGeometry(Part.LineSegment(Vector(-3.83, -0.3, 0), Vector(-4.28, -0.3, 0)), False)
sketch6.addGeometry(Part.ArcOfCircle(Part.Circle(Vector(-4.28, 0, 0), Vector(0, 0, 1), 0.3), math.radians(90), math.radians(270)), False)
sketch6.addGeometry(Part.LineSegment(Vector(-4.28, 0.3, 0), Vector(-3.83, 0.3, 0)), False)
sketch6.addGeometry(Part.LineSegment(Vector(-3.83, 0.3, 0), Vector(-3.83, 0.8, 0)), False)
sketch6.addConstraint(Sketcher.Constraint("Tangent", 0, 2, 1, 1))
sketch6.addConstraint(Sketcher.Constraint("Tangent", 1, 2, 2, 1))
sketch6.addConstraint(Sketcher.Constraint("Coincident", 2, 2, 3, 1))
sketch6.addConstraint(Sketcher.Constraint("Coincident", 3, 2, 4, 1))
sketch6.addConstraint(Sketcher.Constraint("Tangent", 4, 2, 5, 2))
sketch6.addConstraint(Sketcher.Constraint("Tangent", 5, 1, 6, 1))
sketch6.addConstraint(Sketcher.Constraint("Coincident", 6, 2, 7, 1))
sketch6.addConstraint(Sketcher.Constraint("Coincident", 7, 2, 0, 1))
sketch6.addConstraint(Sketcher.Constraint("Horizontal", 0))
sketch6.addConstraint(Sketcher.Constraint("Horizontal", 2))
sketch6.addConstraint(Sketcher.Constraint("Vertical", 3))
sketch6.addConstraint(Sketcher.Constraint("Horizontal", 4))
sketch6.addConstraint(Sketcher.Constraint("Horizontal", 6))
sketch6.addConstraint(Sketcher.Constraint("Vertical", 7))
sketch6.addConstraint(Sketcher.Constraint("Coincident", 5, 3, 1, 3))
sketch6.addConstraint(Sketcher.Constraint("Symmetric", 3, 2, 6, 2, -1))
sketch6.addConstraint(Sketcher.Constraint("Radius", 1, 0.7963))
sketch6.addConstraint(Sketcher.Constraint("Radius", 5, 0.2975))
sketch6.addConstraint(Sketcher.Constraint("DistanceX", 0, 2, 0, 1, 0.455))
sketch6.addConstraint(Sketcher.Constraint("DistanceX", 1, 3, -1, 1, 4.28))
pocket5 = doc.addObject("PartDesign::Pocket", "Pocket004")
body.addObject(pocket5)
pocket5.Profile = sketch6
pocket5.Length = 0.05

sketch7 = doc.addObject("Sketcher::SketchObject", "Sketch006")
body.addObject(sketch7)
sketch7.AttachmentSupport = (doc.XY_Plane, [""])
sketch7.MapMode = "FlatFace"
sketch7.AttachmentOffset = App.Placement(Vector(0, 0, 0.3), App.Rotation())
sketch7.addGeometry(Part.LineSegment(Vector(-1.34, 0.77, 0), Vector(-1.84, 0.77, 0)), False)
sketch7.addGeometry(Part.LineSegment(Vector(-1.84, 0.77, 0), Vector(-1.84, 0, 0)), False)
sketch7.addGeometry(Part.ArcOfCircle(Part.Circle(Vector(-1.06, 0, 0), Vector(0, 0, 1), 0.79), math.radians(180), math.radians(360)), False)
sketch7.addGeometry(Part.LineSegment(Vector(-0.27, 0, 0), Vector(-0.27, 0.77, 0)), False)
sketch7.addGeometry(Part.LineSegment(Vector(-0.27, 0.77, 0), Vector(-0.78, 0.77, 0)), False)
sketch7.addGeometry(Part.LineSegment(Vector(-0.78, 0.77, 0), Vector(-0.78, 0, 0)), False)
sketch7.addGeometry(Part.ArcOfCircle(Part.Circle(Vector(-1.06, 0, 0), Vector(0, 0, 1), 0.28), math.radians(180), math.radians(360)), False)
sketch7.addGeometry(Part.LineSegment(Vector(-1.34, 0, 0), Vector(-1.34, 0.77, 0)), False)
sketch7.addConstraint(Sketcher.Constraint("Coincident", 0, 2, 1, 1))
sketch7.addConstraint(Sketcher.Constraint("Tangent", 1, 2, 2, 1))
sketch7.addConstraint(Sketcher.Constraint("Tangent", 2, 2, 3, 1))
sketch7.addConstraint(Sketcher.Constraint("Coincident", 3, 2, 4, 1))
sketch7.addConstraint(Sketcher.Constraint("Coincident", 4, 2, 5, 1))
sketch7.addConstraint(Sketcher.Constraint("Tangent", 5, 2, 6, 2))
sketch7.addConstraint(Sketcher.Constraint("Tangent", 6, 1, 7, 1))
sketch7.addConstraint(Sketcher.Constraint("Coincident", 7, 2, 0, 1))
sketch7.addConstraint(Sketcher.Constraint("Horizontal", 0))
sketch7.addConstraint(Sketcher.Constraint("Vertical", 1))
sketch7.addConstraint(Sketcher.Constraint("Vertical", 3))
sketch7.addConstraint(Sketcher.Constraint("Horizontal", 4))
sketch7.addConstraint(Sketcher.Constraint("Vertical", 5))
sketch7.addConstraint(Sketcher.Constraint("Vertical", 7))
sketch7.addConstraint(Sketcher.Constraint("Coincident", 6, 3, 2, 3))
sketch7.addConstraint(Sketcher.Constraint("PointOnObject", 2, 3, -1))
sketch7.addConstraint(Sketcher.Constraint("Horizontal", 0, 2, 3, 2))
sketch7.addConstraint(Sketcher.Constraint("Radius", 6, 0.28))
sketch7.addConstraint(Sketcher.Constraint("DistanceY", 1, 2, 1, 1, 0.77))
sketch7.addConstraint(Sketcher.Constraint("Radius", 2, 0.7875))
sketch7.addConstraint(Sketcher.Constraint("DistanceX", 2, 2, -1, 1, 0.27))
pocket6 = doc.addObject("PartDesign::Pocket", "Pocket005")
body.addObject(pocket6)
pocket6.Profile = sketch7
pocket6.Length = 0.05

sketch8 = doc.addObject("Sketcher::SketchObject", "Sketch007")
body.addObject(sketch8)
sketch8.AttachmentSupport = (doc.XY_Plane, [""])
sketch8.MapMode = "FlatFace"
sketch8.AttachmentOffset = App.Placement(Vector(0, 0, 0.3), App.Rotation())
sketch8.addGeometry(Part.Circle(Vector(5, 0, 0), Vector(0, 0, 1), 0.4), False)
sketch8.addConstraint(Sketcher.Constraint("PointOnObject", 0, 3, -1))
sketch8.addConstraint(Sketcher.Constraint("Diameter", 0, 0.792))
sketch8.addConstraint(Sketcher.Constraint("DistanceX", -1, 1, 0, 3, 5.0))
doc.recompute()
hole = doc.addObject("PartDesign::Hole", "Hole")
body.addObject(hole)
hole.Profile = sketch8
hole.ThreadType = "None"
hole.Diameter = 0.792
hole.DepthType = "Dimension"
hole.Depth = 0.05
hole.DrillPoint = "Flat"

sketch9 = doc.addObject("Sketcher::SketchObject", "Sketch008")
body.addObject(sketch9)
sketch9.AttachmentSupport = (doc.XY_Plane, [""])
sketch9.MapMode = "FlatFace"
sketch9.AttachmentOffset = App.Placement(Vector(0, 0, 0.3), App.Rotation())
sketch9.addGeometry(Part.LineSegment(Vector(6.4, 1.9, 0), Vector(5.4, 1.3, 0)), False)
sketch9.addGeometry(Part.ArcOfCircle(Part.Circle(Vector(5, 0, 0), Vector(0, 0, 1), 1.4), math.radians(73), math.radians(206)), False)
sketch9.addGeometry(Part.LineSegment(Vector(3.7, -0.6, 0), Vector(4.5, -0.2, 0)), False)
sketch9.addGeometry(Part.ArcOfCircle(Part.Circle(Vector(5, 0, 0), Vector(0, 0, 1), 0.5), math.radians(34), math.radians(202)), False)
sketch9.addGeometry(Part.LineSegment(Vector(5.5, 0.3, 0), Vector(6.4, 0.8, 0)), False)
sketch9.addGeometry(Part.LineSegment(Vector(6.4, 0.8, 0), Vector(6.4, 1.9, 0)), False)
sketch9.addConstraint(Sketcher.Constraint("Coincident", 0, 2, 1, 1))
sketch9.addConstraint(Sketcher.Constraint("Coincident", 1, 2, 2, 1))
sketch9.addConstraint(Sketcher.Constraint("Coincident", 2, 2, 3, 2))
sketch9.addConstraint(Sketcher.Constraint("Coincident", 3, 1, 4, 1))
sketch9.addConstraint(Sketcher.Constraint("Coincident", 4, 2, 5, 1))
sketch9.addConstraint(Sketcher.Constraint("Coincident", 5, 2, 0, 1))
sketch9.addConstraint(Sketcher.Constraint("Vertical", 5))
sketch9.addConstraint(Sketcher.Constraint("Coincident", 3, 3, 1, 3))
sketch9.addConstraint(Sketcher.Constraint("PointOnObject", 1, 3, -1))
sketch9.addConstraint(Sketcher.Constraint("DistanceX", -1, 1, 1, 3, 5.0))
sketch9.addConstraint(Sketcher.Constraint("Angle", 0, Q("-152.0612 deg")))
sketch9.addConstraint(Sketcher.Constraint("Angle", 2, Q("27.7406 deg")))
sketch9.addConstraint(Sketcher.Constraint("Radius", 1, 1.3982))
sketch9.addConstraint(Sketcher.Constraint("Radius", 3, 0.5497))
sketch9.addConstraint(Sketcher.Constraint("Distance", 2, 0.85))
sketch9.addConstraint(Sketcher.Constraint("Distance", 4, 1.051))
sketch9.addConstraint(Sketcher.Constraint("DistanceY", 5, 1, 5, 2, 1.0527))
sketch9.addConstraint(Sketcher.Constraint("DistanceX", -1, 1, 0, 2, 5.407))
sketch9.addConstraint(Sketcher.Constraint("DistanceY", -1, 1, 3, 1, 0.309))
pocket7 = doc.addObject("PartDesign::Pocket", "Pocket006")
body.addObject(pocket7)
pocket7.Profile = sketch9
pocket7.Length = 0.05

sketch10 = doc.addObject("Sketcher::SketchObject", "Sketch009")
body.addObject(sketch10)
sketch10.AttachmentSupport = (doc.XY_Plane, [""])
sketch10.MapMode = "FlatFace"
sketch10.AttachmentOffset = App.Placement(Vector(0, 0, 0.3), App.Rotation())
sketch10.addGeometry(Part.LineSegment(Vector(4.5, -0.3, 0), Vector(3.6, -0.8, 0)), False)
sketch10.addGeometry(Part.LineSegment(Vector(3.6, -0.8, 0), Vector(3.6, -1.9, 0)), False)
sketch10.addGeometry(Part.LineSegment(Vector(3.6, -1.9, 0), Vector(4.6, -1.3, 0)), False)
sketch10.addGeometry(Part.ArcOfCircle(Part.Circle(Vector(5, 0, 0), Vector(0, 0, 1), 1.4), math.radians(-107), math.radians(26)), False)
sketch10.addGeometry(Part.LineSegment(Vector(6.3, 0.6, 0), Vector(5.5, 0.2, 0)), False)
sketch10.addGeometry(Part.ArcOfCircle(Part.Circle(Vector(5, 0, 0), Vector(0, 0, 1), 0.5), math.radians(-145), math.radians(22)), False)
sketch10.addConstraint(Sketcher.Constraint("Coincident", 0, 2, 1, 1))
sketch10.addConstraint(Sketcher.Constraint("Coincident", 1, 2, 2, 1))
sketch10.addConstraint(Sketcher.Constraint("Coincident", 2, 2, 3, 1))
sketch10.addConstraint(Sketcher.Constraint("Coincident", 3, 2, 4, 1))
sketch10.addConstraint(Sketcher.Constraint("Coincident", 4, 2, 5, 2))
sketch10.addConstraint(Sketcher.Constraint("Coincident", 5, 1, 0, 1))
sketch10.addConstraint(Sketcher.Constraint("Vertical", 1))
sketch10.addConstraint(Sketcher.Constraint("Coincident", 5, 3, 3, 3))
sketch10.addConstraint(Sketcher.Constraint("PointOnObject", 3, 3, -1))
sketch10.addConstraint(Sketcher.Constraint("DistanceX", -1, 1, 3, 3, 5.0))
sketch10.addConstraint(Sketcher.Constraint("Radius", 3, 1.3976))
sketch10.addConstraint(Sketcher.Constraint("Radius", 5, 0.5476))
sketch10.addConstraint(Sketcher.Constraint("Distance", 4, 0.852))
sketch10.addConstraint(Sketcher.Constraint("DistanceY", 1, 2, 1, 1, 1.0527))
sketch10.addConstraint(Sketcher.Constraint("DistanceY", 0, 2, -1, 1, 0.799))
sketch10.addConstraint(Sketcher.Constraint("DistanceX", -1, 1, 3, 2, 6.258))
sketch10.addConstraint(Sketcher.Constraint("DistanceX", 1, 2, 2, 2, 0.976))
sketch10.addConstraint(Sketcher.Constraint("DistanceY", 1, 2, 2, 2, 0.513))
sketch10.addConstraint(Sketcher.Constraint("DistanceX", 5, 1, 4, 2, 0.959))
pocket8 = doc.addObject("PartDesign::Pocket", "Pocket007")
body.addObject(pocket8)
pocket8.Profile = sketch10
pocket8.Length = 0.05

doc.recompute()
